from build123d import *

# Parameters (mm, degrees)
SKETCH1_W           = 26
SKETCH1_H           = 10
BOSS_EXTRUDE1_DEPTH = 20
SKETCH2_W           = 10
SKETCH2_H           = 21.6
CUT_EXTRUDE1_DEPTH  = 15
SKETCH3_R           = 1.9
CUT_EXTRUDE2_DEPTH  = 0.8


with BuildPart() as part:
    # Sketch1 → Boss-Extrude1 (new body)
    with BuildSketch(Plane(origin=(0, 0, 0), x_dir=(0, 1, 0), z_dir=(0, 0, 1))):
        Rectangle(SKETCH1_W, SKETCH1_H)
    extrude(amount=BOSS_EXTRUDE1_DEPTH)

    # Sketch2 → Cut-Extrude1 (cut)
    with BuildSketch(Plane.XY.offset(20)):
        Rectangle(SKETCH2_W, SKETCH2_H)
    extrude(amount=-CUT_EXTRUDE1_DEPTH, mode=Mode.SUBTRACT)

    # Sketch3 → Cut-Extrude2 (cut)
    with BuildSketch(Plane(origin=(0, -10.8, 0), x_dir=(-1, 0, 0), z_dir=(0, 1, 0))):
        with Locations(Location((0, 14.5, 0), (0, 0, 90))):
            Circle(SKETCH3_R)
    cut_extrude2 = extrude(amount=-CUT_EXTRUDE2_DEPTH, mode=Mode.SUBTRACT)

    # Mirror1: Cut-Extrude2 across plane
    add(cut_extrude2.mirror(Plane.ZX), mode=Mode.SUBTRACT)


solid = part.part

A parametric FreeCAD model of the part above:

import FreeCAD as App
import Part
import Sketcher

V = App.Vector
Q = App.Units.Quantity


def add_polygon(sketch, points):
    """Adds a closed chain of lines whose ends are joined by coincident constraints."""
    first, n = sketch.GeometryCount, len(points)
    for a, b in zip(points, points[1:] + points[:1]):
        sketch.addGeometry(Part.LineSegment(App.Vector(*a, 0), App.Vector(*b, 0)), False)
    for i in range(n):
        sketch.addConstraint(Sketcher.Constraint("Coincident", first + i, 2, first + (i + 1) % n, 1))

doc = App.newDocument("Part")
body = doc.addObject("PartDesign::Body", "Body")

sketch1 = body.newObject("Sketcher::SketchObject", "Sketch")
sketch1.AttachmentSupport = (doc.getObject("XY_Plane"), [""])
sketch1.MapMode = "FlatFace"
add_polygon(sketch1, [(-5, -13), (5, -13), (5, 13), (-5, 13)])
sketch1.addConstraint([
    Sketcher.Constraint("Horizontal", 0),
    Sketcher.Constraint("Vertical", 1),
    Sketcher.Constraint("Horizontal", 2),
    Sketcher.Constraint("Vertical", 3),
    Sketcher.Constraint("Symmetric", 0, 2, 2, 2, -1, 1),
    Sketcher.Constraint("DistanceX", 0, 1, 0, 2, Q("10 mm")),
    Sketcher.Constraint("DistanceY", 1, 1, 1, 2, Q("26 mm")),
])
pad1 = body.newObject("PartDesign::Pad", "Pad")
pad1.Profile = sketch1
pad1.Length = 20

sketch2 = body.newObject("Sketcher::SketchObject", "Sketch001")
sketch2.AttachmentSupport = (doc.getObject("XY_Plane"), [""])
sketch2.MapMode = "FlatFace"
sketch2.AttachmentOffset = App.Placement(V(0, 0, 20), App.Rotation())
add_polygon(sketch2, [(-5, 11), (-5, -11), (5, -11), (5, 11)])
sketch2.addConstraint([
    Sketcher.Constraint("Vertical", 0),
    Sketcher.Constraint("Horizontal", 1),
    Sketcher.Constraint("Vertical", 2),
    Sketcher.Constraint("Horizontal", 3),
    Sketcher.Constraint("Symmetric", 0, 2, 2, 2, -1, 1),
    Sketcher.Constraint("DistanceX", 1, 1, 1, 2, Q("10 mm")),
    Sketcher.Constraint("DistanceY", 0, 2, 0, 1, Q("21.6 mm")),
])
pocket1 = body.newObject("PartDesign::Pocket", "Pocket")
pocket1.Profile = sketch2
pocket1.Length = 15

sketch3 = body.newObject("Sketcher::SketchObject", "Sketch002")
sketch3.AttachmentSupport = (doc.getObject("XZ_Plane"), [""])
sketch3.MapMode = "FlatFace"
sketch3.AttachmentOffset = App.Placement(V(0, 0, 10.8), App.Rotation())
sketch3.addGeometry(Part.Circle(V(0, 14.5, 0), V(0, 0, 1), 1.9), False)
sketch3.addConstraint([
    Sketcher.Constraint("PointOnObject", 0, 3, -2),
    Sketcher.Constraint("Diameter", 0, Q("3.8 mm")),
    Sketcher.Constraint("DistanceY", -1, 1, 0, 3, Q("14.5 mm")),
])
pocket2 = body.newObject("PartDesign::Pocket", "Pocket001")
pocket2.Profile = sketch3
pocket2.Length = 0.8
pocket2.Reversed = True
doc.recompute()

mirrored = body.newObject("PartDesign::Mirrored", "Mirrored")
mirrored.Originals = [pocket2]
mirrored.MirrorPlane = (doc.getObject("XZ_Plane"), [""])
body.Tip = mirrored

doc.recompute()
